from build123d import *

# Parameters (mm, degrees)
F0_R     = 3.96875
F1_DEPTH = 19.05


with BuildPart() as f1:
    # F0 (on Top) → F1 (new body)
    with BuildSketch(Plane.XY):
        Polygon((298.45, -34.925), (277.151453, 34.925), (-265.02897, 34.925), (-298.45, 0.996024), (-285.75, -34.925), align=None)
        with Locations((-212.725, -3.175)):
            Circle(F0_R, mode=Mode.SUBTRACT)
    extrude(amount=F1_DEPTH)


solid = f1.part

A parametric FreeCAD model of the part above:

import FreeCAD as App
import Part
import Sketcher
Q = App.Units.Quantity

doc = App.newDocument("Part")
body = doc.addObject("PartDesign::Body", "Body")

# Sketch on XY plane
sketch1 = body.newObject("Sketcher::SketchObject", "Sketch")
sketch1.AttachmentSupport = (doc.getObject("XY_Plane"), [""])
sketch1.MapMode = "FlatFace"
sketch1.addGeometry([
    Part.LineSegment(App.Vector(298.45, -34.925, 0), App.Vector(277.151453, 34.925, 0)),  # 0
    Part.LineSegment(App.Vector(277.151453, 34.925, 0), App.Vector(-265.02897, 34.925, 0)),  # 1
    Part.LineSegment(App.Vector(-265.02897, 34.925, 0), App.Vector(-298.45, 0.996024, 0)),  # 2
    Part.LineSegment(App.Vector(-298.45, 0.996024, 0), App.Vector(-285.75, -34.925, 0)),  # 3
    Part.LineSegment(App.Vector(-285.75, -34.925, 0), App.Vector(298.45, -34.925, 0)),  # 4
    Part.Circle(App.Vector(-212.725, -3.175, 0), App.Vector(0, 0, 1), 3.96875),  # 5
], False)
sketch1.addConstraint([
    Sketcher.Constraint("Coincident", 0, 2, 1, 1),
    Sketcher.Constraint("Coincident", 1, 2, 2, 1),
    Sketcher.Constraint("Coincident", 2, 2, 3, 1),
    Sketcher.Constraint("Coincident", 3, 2, 4, 1),
    Sketcher.Constraint("Coincident", 4, 2, 0, 1),
    Sketcher.Constraint("Horizontal", 1),
    Sketcher.Constraint("Horizontal", 4),
    Sketcher.Constraint("DistanceX", 4, 1, 4, 2, Q("23 in")),
    Sketcher.Constraint("Diameter", 5, Q("0.3125 in")),
    Sketcher.Constraint("Distance", 3, Q("1.5 in")),
    Sketcher.Constraint("DistanceY", 5, 3, 0, 2, Q("1.5 in")),
    Sketcher.Constraint("DistanceX", 2, 2, 3, 2, Q("0.5 in")),
    Sketcher.Constraint("DistanceX", 2, 2, -1, 1, Q("11.75 in")),
    Sketcher.Constraint("DistanceY", 3, 2, 1, 2, Q("2.75 in")),
    Sketcher.Constraint("Distance", 0, Q("2.875 in")),
    Sketcher.Constraint("Distance", 2, Q("1.875 in")),
    Sketcher.Constraint("DistanceX", 5, 3, -1, 1, Q("8.375 in")),
    Sketcher.Constraint("DistanceY", 5, 3, -1, 1, Q("0.125 in")),
])
pad1 = body.newObject("PartDesign::Pad", "Pad")
pad1.Profile = sketch1
pad1.Length = Q("0.75 in")

doc.recompute()
